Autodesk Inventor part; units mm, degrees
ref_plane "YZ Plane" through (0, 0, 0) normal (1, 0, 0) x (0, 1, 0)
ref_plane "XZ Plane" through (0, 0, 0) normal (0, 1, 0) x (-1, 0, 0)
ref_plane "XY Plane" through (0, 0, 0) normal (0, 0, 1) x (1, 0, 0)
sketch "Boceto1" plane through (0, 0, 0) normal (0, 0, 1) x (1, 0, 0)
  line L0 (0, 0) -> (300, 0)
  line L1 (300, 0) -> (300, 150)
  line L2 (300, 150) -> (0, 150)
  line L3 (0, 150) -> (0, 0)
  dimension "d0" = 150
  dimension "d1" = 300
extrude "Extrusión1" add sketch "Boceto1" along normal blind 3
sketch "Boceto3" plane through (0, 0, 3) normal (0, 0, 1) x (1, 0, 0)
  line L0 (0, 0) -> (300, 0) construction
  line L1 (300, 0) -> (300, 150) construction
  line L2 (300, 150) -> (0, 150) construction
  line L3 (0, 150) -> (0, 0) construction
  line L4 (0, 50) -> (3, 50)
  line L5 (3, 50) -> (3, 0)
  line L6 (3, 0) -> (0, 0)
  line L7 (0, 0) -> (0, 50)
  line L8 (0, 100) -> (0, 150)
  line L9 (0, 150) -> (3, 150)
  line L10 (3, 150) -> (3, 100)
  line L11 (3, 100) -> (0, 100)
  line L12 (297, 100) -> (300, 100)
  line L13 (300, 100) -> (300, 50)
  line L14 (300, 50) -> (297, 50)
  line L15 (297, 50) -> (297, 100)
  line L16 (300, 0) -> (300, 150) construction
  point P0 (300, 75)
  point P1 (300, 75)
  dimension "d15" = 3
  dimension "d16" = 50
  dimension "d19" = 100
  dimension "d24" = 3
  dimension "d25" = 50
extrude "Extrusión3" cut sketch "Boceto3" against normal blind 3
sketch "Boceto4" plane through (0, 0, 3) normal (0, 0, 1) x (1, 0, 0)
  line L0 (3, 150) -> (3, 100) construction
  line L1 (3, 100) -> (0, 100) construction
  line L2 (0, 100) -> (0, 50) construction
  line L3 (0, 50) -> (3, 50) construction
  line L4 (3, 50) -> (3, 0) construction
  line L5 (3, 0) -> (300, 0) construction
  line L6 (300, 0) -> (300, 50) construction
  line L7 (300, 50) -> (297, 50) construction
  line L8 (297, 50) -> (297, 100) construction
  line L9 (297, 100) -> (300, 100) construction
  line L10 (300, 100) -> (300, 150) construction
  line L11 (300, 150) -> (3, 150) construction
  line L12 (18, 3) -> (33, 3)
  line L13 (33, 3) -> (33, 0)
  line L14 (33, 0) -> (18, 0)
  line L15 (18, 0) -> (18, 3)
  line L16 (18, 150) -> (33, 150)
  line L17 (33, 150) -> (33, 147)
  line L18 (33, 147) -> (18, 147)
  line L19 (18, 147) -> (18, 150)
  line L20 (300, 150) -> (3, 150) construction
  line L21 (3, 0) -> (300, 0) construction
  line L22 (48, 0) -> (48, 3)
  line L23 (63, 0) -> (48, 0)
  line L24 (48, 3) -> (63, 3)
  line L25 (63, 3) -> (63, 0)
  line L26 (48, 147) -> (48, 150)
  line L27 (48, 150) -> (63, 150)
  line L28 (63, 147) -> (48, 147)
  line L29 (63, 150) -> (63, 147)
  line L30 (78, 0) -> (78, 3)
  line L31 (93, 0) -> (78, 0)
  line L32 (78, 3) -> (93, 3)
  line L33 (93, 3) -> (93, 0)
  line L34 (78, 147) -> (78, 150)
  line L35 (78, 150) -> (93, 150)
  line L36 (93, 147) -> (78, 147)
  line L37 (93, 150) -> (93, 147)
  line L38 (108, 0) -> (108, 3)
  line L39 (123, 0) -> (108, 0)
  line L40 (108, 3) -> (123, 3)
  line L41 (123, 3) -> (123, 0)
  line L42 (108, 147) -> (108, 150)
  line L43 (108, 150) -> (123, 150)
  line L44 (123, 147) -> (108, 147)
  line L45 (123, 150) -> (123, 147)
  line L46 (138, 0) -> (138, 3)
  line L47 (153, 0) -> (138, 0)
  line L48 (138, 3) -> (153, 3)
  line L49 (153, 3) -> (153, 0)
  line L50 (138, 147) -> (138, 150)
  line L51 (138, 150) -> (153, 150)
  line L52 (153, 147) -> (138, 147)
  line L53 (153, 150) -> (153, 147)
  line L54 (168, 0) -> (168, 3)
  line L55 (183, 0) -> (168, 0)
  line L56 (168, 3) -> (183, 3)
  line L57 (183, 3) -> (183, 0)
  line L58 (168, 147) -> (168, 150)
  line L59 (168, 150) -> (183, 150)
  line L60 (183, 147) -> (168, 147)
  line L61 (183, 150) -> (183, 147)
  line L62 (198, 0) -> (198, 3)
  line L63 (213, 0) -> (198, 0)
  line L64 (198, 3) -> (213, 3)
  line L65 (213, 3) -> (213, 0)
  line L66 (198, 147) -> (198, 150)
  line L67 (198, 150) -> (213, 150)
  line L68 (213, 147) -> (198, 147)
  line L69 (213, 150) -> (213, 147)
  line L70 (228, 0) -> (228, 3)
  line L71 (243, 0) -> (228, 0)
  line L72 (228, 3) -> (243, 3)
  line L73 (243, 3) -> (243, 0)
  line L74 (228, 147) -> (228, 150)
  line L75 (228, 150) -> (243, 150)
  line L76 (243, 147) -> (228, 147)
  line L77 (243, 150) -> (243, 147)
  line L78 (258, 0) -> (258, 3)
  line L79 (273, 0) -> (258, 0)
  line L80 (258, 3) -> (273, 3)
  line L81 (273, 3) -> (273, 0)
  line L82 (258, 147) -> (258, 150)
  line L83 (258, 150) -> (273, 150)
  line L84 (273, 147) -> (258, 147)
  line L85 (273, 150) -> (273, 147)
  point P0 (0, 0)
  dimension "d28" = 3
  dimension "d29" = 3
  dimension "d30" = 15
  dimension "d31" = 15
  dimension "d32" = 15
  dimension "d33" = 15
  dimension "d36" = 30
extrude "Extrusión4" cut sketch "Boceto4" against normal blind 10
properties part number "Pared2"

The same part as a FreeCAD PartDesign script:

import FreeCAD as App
import Part
import Sketcher
from FreeCAD import Vector


def add_polygon(sketch, points):
    """Adds a closed chain of lines whose ends are joined by coincident constraints."""
    first, n = sketch.GeometryCount, len(points)
    for a, b in zip(points, points[1:] + points[:1]):
        sketch.addGeometry(Part.LineSegment(App.Vector(*a, 0), App.Vector(*b, 0)), False)
    for i in range(n):
        sketch.addConstraint(Sketcher.Constraint("Coincident", first + i, 2, first + (i + 1) % n, 1))

doc = App.newDocument("Part")
body = doc.addObject("PartDesign::Body", "Body")

# Sketch on XY plane
sketch1 = body.newObject("Sketcher::SketchObject", "Sketch")
sketch1.AttachmentSupport = (doc.getObject("XY_Plane"), [""])
sketch1.MapMode = "FlatFace"
add_polygon(sketch1, [(0, 150), (0, 0), (300, 0), (300, 150)])  # lines 0-3
sketch1.addConstraint([
    Sketcher.Constraint("Vertical", 0),
    Sketcher.Constraint("Horizontal", 1),
    Sketcher.Constraint("Vertical", 2),
    Sketcher.Constraint("Horizontal", 3),
    Sketcher.Constraint("Coincident", 0, 2, -1, 1),
    Sketcher.Constraint("DistanceX", 1, 1, 1, 2, 300.0),
    Sketcher.Constraint("DistanceY", 0, 2, 0, 1, 150.0),
])
pad1 = body.newObject("PartDesign::Pad", "Pad")
pad1.Profile = sketch1
pad1.Length = 3

# Sketch on XY plane
sketch2 = body.newObject("Sketcher::SketchObject", "Sketch001")
sketch2.AttachmentSupport = (doc.getObject("XY_Plane"), [""])
sketch2.MapMode = "FlatFace"
sketch2.AttachmentOffset = App.Placement(Vector(0, 0, 3), App.Rotation())
add_polygon(sketch2, [(3, 50), (0, 50), (0, 0), (3, 0)])  # lines 0-3
add_polygon(sketch2, [(0, 150), (0, 100), (3, 100), (3, 150)])  # lines 4-7
add_polygon(sketch2, [(300, 100), (297, 100), (297, 50), (300, 50)])  # lines 8-11
sketch2.addConstraint([
    Sketcher.Constraint("Horizontal", 0),
    Sketcher.Constraint("Vertical", 1),
    Sketcher.Constraint("Horizontal", 2),
    Sketcher.Constraint("Vertical", 3),
    Sketcher.Constraint("Vertical", 4),
    Sketcher.Constraint("Horizontal", 5),
    Sketcher.Constraint("Vertical", 6),
    Sketcher.Constraint("Horizontal", 7),
    Sketcher.Constraint("Horizontal", 8),
    Sketcher.Constraint("Vertical", 9),
    Sketcher.Constraint("Horizontal", 10),
    Sketcher.Constraint("Vertical", 11),
    Sketcher.Constraint("Coincident", 1, 2, -1, 1),
    Sketcher.Constraint("PointOnObject", 4, 2, -2),
    Sketcher.Constraint("Horizontal", 5, 2, 8, 2),
    Sketcher.Constraint("Horizontal", 3, 2, 9, 2),
    Sketcher.Constraint("Vertical", 3, 2, 5, 2),
    Sketcher.Constraint("Equal", 7, 8),
    Sketcher.Constraint("Equal", 3, 4),
    Sketcher.Constraint("Equal", 6, 9),
    Sketcher.Constraint("DistanceX", 0, 2, 0, 1, 3.0),
    Sketcher.Constraint("DistanceY", 1, 2, 1, 1, 50.0),
    Sketcher.Constraint("DistanceX", -1, 1, 8, 2, 297.0),
])
pocket1 = body.newObject("PartDesign::Pocket", "Pocket")
pocket1.Profile = sketch2
pocket1.Length = 3

# Sketch on XY plane
sketch3 = body.newObject("Sketcher::SketchObject", "Sketch002")
sketch3.AttachmentSupport = (doc.getObject("XY_Plane"), [""])
sketch3.MapMode = "FlatFace"
sketch3.AttachmentOffset = App.Placement(Vector(0, 0, 3), App.Rotation())
add_polygon(sketch3, [(33, 3), (18, 3), (18, 0), (33, 0)])  # lines 0-3
add_polygon(sketch3, [(33, 150), (18, 150), (18, 147), (33, 147)])  # lines 4-7
add_polygon(sketch3, [(48, 3), (48, 0), (63, 0), (63, 3)])  # lines 8-11
add_polygon(sketch3, [(48, 150), (48, 147), (63, 147), (63, 150)])  # lines 12-15
add_polygon(sketch3, [(78, 3), (78, 0), (93, 0), (93, 3)])  # lines 16-19
add_polygon(sketch3, [(78, 150), (78, 147), (93, 147), (93, 150)])  # lines 20-23
add_polygon(sketch3, [(108, 3), (108, 0), (123, 0), (123, 3)])  # lines 24-27
add_polygon(sketch3, [(108, 150), (108, 147), (123, 147), (123, 150)])  # lines 28-31
add_polygon(sketch3, [(138, 3), (138, 0), (153, 0), (153, 3)])  # lines 32-35
add_polygon(sketch3, [(138, 150), (138, 147), (153, 147), (153, 150)])  # lines 36-39
add_polygon(sketch3, [(168, 3), (168, 0), (183, 0), (183, 3)])  # lines 40-43
add_polygon(sketch3, [(168, 150), (168, 147), (183, 147), (183, 150)])  # lines 44-47
add_polygon(sketch3, [(198, 3), (198, 0), (213, 0), (213, 3)])  # lines 48-51
add_polygon(sketch3, [(198, 150), (198, 147), (213, 147), (213, 150)])  # lines 52-55
add_polygon(sketch3, [(228, 3), (228, 0), (243, 0), (243, 3)])  # lines 56-59
add_polygon(sketch3, [(228, 150), (228, 147), (243, 147), (243, 150)])  # lines 60-63
add_polygon(sketch3, [(258, 3), (258, 0), (273, 0), (273, 3)])  # lines 64-67
add_polygon(sketch3, [(258, 150), (258, 147), (273, 147), (273, 150)])  # lines 68-71
sketch3.addConstraint([
    Sketcher.Constraint("Horizontal", 0),
    Sketcher.Constraint("Vertical", 1),
    Sketcher.Constraint("Horizontal", 2),
    Sketcher.Constraint("Vertical", 3),
    Sketcher.Constraint("Horizontal", 4),
    Sketcher.Constraint("Vertical", 5),
    Sketcher.Constraint("Horizontal", 6),
    Sketcher.Constraint("Vertical", 7),
    Sketcher.Constraint("Vertical", 8),
    Sketcher.Constraint("Horizontal", 9),
    Sketcher.Constraint("Vertical", 10),
    Sketcher.Constraint("Horizontal", 11),
    Sketcher.Constraint("Vertical", 12),
    Sketcher.Constraint("Horizontal", 13),
    Sketcher.Constraint("Vertical", 14),
    Sketcher.Constraint("Horizontal", 15),
    Sketcher.Constraint("Vertical", 16),
    Sketcher.Constraint("Horizontal", 17),
    Sketcher.Constraint("Vertical", 18),
    Sketcher.Constraint("Horizontal", 19),
    Sketcher.Constraint("Vertical", 20),
    Sketcher.Constraint("Horizontal", 21),
    Sketcher.Constraint("Vertical", 22),
    Sketcher.Constraint("Horizontal", 23),
    Sketcher.Constraint("Vertical", 24),
    Sketcher.Constraint("Horizontal", 25),
    Sketcher.Constraint("Vertical", 26),
    Sketcher.Constraint("Horizontal", 27),
    Sketcher.Constraint("Vertical", 28),
    Sketcher.Constraint("Horizontal", 29),
    Sketcher.Constraint("Vertical", 30),
    Sketcher.Constraint("Horizontal", 31),
    Sketcher.Constraint("Vertical", 32),
    Sketcher.Constraint("Horizontal", 33),
    Sketcher.Constraint("Vertical", 34),
    Sketcher.Constraint("Horizontal", 35),
    Sketcher.Constraint("Vertical", 36),
    Sketcher.Constraint("Horizontal", 37),
    Sketcher.Constraint("Vertical", 38),
    Sketcher.Constraint("Horizontal", 39),
    Sketcher.Constraint("Vertical", 40),
    Sketcher.Constraint("Horizontal", 41),
    Sketcher.Constraint("Vertical", 42),
    Sketcher.Constraint("Horizontal", 43),
    Sketcher.Constraint("Vertical", 44),
    Sketcher.Constraint("Horizontal", 45),
    Sketcher.Constraint("Vertical", 46),
    Sketcher.Constraint("Horizontal", 47),
    Sketcher.Constraint("Vertical", 48),
    Sketcher.Constraint("Horizontal", 49),
    Sketcher.Constraint("Vertical", 50),
    Sketcher.Constraint("Horizontal", 51),
    Sketcher.Constraint("Vertical", 52),
    Sketcher.Constraint("Horizontal", 53),
    Sketcher.Constraint("Vertical", 54),
    Sketcher.Constraint("Horizontal", 55),
    Sketcher.Constraint("Vertical", 56),
    Sketcher.Constraint("Horizontal", 57),
    Sketcher.Constraint("Vertical", 58),
    Sketcher.Constraint("Horizontal", 59),
    Sketcher.Constraint("Vertical", 60),
    Sketcher.Constraint("Horizontal", 61),
    Sketcher.Constraint("Vertical", 62),
    Sketcher.Constraint("Horizontal", 63),
    Sketcher.Constraint("Vertical", 64),
    Sketcher.Constraint("Horizontal", 65),
    Sketcher.Constraint("Vertical", 66),
    Sketcher.Constraint("Horizontal", 67),
    Sketcher.Constraint("Vertical", 68),
    Sketcher.Constraint("Horizontal", 69),
    Sketcher.Constraint("Vertical", 70),
    Sketcher.Constraint("Horizontal", 71),
    Sketcher.Constraint("PointOnObject", 1, 2, -1),
    Sketcher.Constraint("PointOnObject", 8, 2, -1),
    Sketcher.Constraint("PointOnObject", 16, 2, -1),
    Sketcher.Constraint("PointOnObject", 24, 2, -1),
    Sketcher.Constraint("PointOnObject", 32, 2, -1),
    Sketcher.Constraint("PointOnObject", 40, 2, -1),
    Sketcher.Constraint("PointOnObject", 48, 2, -1),
    Sketcher.Constraint("PointOnObject", 56, 2, -1),
    Sketcher.Constraint("PointOnObject", 64, 2, -1),
    Sketcher.Constraint("Horizontal", 3, 2, 10, 2),
    Sketcher.Constraint("Horizontal", 6, 2, 12, 2),
    Sketcher.Constraint("Horizontal", 7, 2, 14, 2),
    Sketcher.Constraint("Horizontal", 11, 2, 18, 2),
    Sketcher.Constraint("Horizontal", 13, 2, 20, 2),
    Sketcher.Constraint("Horizontal", 15, 2, 22, 2),
    Sketcher.Constraint("Horizontal", 19, 2, 26, 2),
    Sketcher.Constraint("Horizontal", 21, 2, 28, 2),
    Sketcher.Constraint("Horizontal", 23, 2, 30, 2),
    Sketcher.Constraint("Horizontal", 27, 2, 34, 2),
    Sketcher.Constraint("Horizontal", 29, 2, 36, 2),
    Sketcher.Constraint("Horizontal", 31, 2, 38, 2),
    Sketcher.Constraint("Horizontal", 35, 2, 42, 2),
    Sketcher.Constraint("Horizontal", 37, 2, 44, 2),
    Sketcher.Constraint("Horizontal", 39, 2, 46, 2),
    Sketcher.Constraint("Horizontal", 43, 2, 50, 2),
    Sketcher.Constraint("Horizontal", 45, 2, 52, 2),
    Sketcher.Constraint("Horizontal", 47, 2, 54, 2),
    Sketcher.Constraint("Horizontal", 51, 2, 58, 2),
    Sketcher.Constraint("Horizontal", 53, 2, 60, 2),
    Sketcher.Constraint("Horizontal", 55, 2, 62, 2),
    Sketcher.Constraint("Horizontal", 59, 2, 66, 2),
    Sketcher.Constraint("Horizontal", 61, 2, 68, 2),
    Sketcher.Constraint("Horizontal", 63, 2, 70, 2),
    Sketcher.Constraint("Vertical", 1, 2, 4, 2),
    Sketcher.Constraint("Vertical", 3, 2, 6, 2),
    Sketcher.Constraint("Vertical", 11, 2, 12, 2),
    Sketcher.Constraint("Vertical", 10, 2, 13, 2),
    Sketcher.Constraint("Vertical", 19, 2, 20, 2),
    Sketcher.Constraint("Vertical", 18, 2, 21, 2),
    Sketcher.Constraint("Vertical", 27, 2, 28, 2),
    Sketcher.Constraint("Vertical", 26, 2, 29, 2),
    Sketcher.Constraint("Vertical", 35, 2, 36, 2),
    Sketcher.Constraint("Vertical", 34, 2, 37, 2),
    Sketcher.Constraint("Vertical", 43, 2, 44, 2),
    Sketcher.Constraint("Vertical", 42, 2, 45, 2),
    Sketcher.Constraint("Vertical", 51, 2, 52, 2),
    Sketcher.Constraint("Vertical", 50, 2, 53, 2),
    Sketcher.Constraint("Vertical", 59, 2, 60, 2),
    Sketcher.Constraint("Vertical", 58, 2, 61, 2),
    Sketcher.Constraint("Vertical", 67, 2, 68, 2),
    Sketcher.Constraint("Vertical", 66, 2, 69, 2),
    Sketcher.Constraint("Equal", 6, 9),
    Sketcher.Constraint("Equal", 15, 17),
    Sketcher.Constraint("Equal", 23, 25),
    Sketcher.Constraint("Equal", 31, 33),
    Sketcher.Constraint("Equal", 39, 41),
    Sketcher.Constraint("Equal", 47, 49),
    Sketcher.Constraint("Equal", 55, 57),
    Sketcher.Constraint("Equal", 63, 65),
    Sketcher.Constraint("Equal", 3, 5),
    Sketcher.Constraint("DistanceX", 0, 2, 0, 1, 15.0),
    Sketcher.Constraint("DistanceY", 1, 2, 1, 1, 3.0),
    Sketcher.Constraint("DistanceX", -1, 1, 0, 2, 18.0),
    Sketcher.Constraint("DistanceY", -1, 1, 4, 2, 150.0),
    Sketcher.Constraint("DistanceX", -1, 1, 8, 2, 48.0),
    Sketcher.Constraint("DistanceX", -1, 1, 16, 2, 78.0),
    Sketcher.Constraint("DistanceX", -1, 1, 24, 2, 108.0),
    Sketcher.Constraint("DistanceX", -1, 1, 32, 2, 138.0),
    Sketcher.Constraint("DistanceX", -1, 1, 40, 2, 168.0),
    Sketcher.Constraint("DistanceX", -1, 1, 48, 2, 198.0),
    Sketcher.Constraint("DistanceX", -1, 1, 56, 2, 228.0),
    Sketcher.Constraint("DistanceX", -1, 1, 64, 2, 258.0),
])
pocket2 = body.newObject("PartDesign::Pocket", "Pocket001")
pocket2.Profile = sketch3
pocket2.Length = 10

doc.recompute()
